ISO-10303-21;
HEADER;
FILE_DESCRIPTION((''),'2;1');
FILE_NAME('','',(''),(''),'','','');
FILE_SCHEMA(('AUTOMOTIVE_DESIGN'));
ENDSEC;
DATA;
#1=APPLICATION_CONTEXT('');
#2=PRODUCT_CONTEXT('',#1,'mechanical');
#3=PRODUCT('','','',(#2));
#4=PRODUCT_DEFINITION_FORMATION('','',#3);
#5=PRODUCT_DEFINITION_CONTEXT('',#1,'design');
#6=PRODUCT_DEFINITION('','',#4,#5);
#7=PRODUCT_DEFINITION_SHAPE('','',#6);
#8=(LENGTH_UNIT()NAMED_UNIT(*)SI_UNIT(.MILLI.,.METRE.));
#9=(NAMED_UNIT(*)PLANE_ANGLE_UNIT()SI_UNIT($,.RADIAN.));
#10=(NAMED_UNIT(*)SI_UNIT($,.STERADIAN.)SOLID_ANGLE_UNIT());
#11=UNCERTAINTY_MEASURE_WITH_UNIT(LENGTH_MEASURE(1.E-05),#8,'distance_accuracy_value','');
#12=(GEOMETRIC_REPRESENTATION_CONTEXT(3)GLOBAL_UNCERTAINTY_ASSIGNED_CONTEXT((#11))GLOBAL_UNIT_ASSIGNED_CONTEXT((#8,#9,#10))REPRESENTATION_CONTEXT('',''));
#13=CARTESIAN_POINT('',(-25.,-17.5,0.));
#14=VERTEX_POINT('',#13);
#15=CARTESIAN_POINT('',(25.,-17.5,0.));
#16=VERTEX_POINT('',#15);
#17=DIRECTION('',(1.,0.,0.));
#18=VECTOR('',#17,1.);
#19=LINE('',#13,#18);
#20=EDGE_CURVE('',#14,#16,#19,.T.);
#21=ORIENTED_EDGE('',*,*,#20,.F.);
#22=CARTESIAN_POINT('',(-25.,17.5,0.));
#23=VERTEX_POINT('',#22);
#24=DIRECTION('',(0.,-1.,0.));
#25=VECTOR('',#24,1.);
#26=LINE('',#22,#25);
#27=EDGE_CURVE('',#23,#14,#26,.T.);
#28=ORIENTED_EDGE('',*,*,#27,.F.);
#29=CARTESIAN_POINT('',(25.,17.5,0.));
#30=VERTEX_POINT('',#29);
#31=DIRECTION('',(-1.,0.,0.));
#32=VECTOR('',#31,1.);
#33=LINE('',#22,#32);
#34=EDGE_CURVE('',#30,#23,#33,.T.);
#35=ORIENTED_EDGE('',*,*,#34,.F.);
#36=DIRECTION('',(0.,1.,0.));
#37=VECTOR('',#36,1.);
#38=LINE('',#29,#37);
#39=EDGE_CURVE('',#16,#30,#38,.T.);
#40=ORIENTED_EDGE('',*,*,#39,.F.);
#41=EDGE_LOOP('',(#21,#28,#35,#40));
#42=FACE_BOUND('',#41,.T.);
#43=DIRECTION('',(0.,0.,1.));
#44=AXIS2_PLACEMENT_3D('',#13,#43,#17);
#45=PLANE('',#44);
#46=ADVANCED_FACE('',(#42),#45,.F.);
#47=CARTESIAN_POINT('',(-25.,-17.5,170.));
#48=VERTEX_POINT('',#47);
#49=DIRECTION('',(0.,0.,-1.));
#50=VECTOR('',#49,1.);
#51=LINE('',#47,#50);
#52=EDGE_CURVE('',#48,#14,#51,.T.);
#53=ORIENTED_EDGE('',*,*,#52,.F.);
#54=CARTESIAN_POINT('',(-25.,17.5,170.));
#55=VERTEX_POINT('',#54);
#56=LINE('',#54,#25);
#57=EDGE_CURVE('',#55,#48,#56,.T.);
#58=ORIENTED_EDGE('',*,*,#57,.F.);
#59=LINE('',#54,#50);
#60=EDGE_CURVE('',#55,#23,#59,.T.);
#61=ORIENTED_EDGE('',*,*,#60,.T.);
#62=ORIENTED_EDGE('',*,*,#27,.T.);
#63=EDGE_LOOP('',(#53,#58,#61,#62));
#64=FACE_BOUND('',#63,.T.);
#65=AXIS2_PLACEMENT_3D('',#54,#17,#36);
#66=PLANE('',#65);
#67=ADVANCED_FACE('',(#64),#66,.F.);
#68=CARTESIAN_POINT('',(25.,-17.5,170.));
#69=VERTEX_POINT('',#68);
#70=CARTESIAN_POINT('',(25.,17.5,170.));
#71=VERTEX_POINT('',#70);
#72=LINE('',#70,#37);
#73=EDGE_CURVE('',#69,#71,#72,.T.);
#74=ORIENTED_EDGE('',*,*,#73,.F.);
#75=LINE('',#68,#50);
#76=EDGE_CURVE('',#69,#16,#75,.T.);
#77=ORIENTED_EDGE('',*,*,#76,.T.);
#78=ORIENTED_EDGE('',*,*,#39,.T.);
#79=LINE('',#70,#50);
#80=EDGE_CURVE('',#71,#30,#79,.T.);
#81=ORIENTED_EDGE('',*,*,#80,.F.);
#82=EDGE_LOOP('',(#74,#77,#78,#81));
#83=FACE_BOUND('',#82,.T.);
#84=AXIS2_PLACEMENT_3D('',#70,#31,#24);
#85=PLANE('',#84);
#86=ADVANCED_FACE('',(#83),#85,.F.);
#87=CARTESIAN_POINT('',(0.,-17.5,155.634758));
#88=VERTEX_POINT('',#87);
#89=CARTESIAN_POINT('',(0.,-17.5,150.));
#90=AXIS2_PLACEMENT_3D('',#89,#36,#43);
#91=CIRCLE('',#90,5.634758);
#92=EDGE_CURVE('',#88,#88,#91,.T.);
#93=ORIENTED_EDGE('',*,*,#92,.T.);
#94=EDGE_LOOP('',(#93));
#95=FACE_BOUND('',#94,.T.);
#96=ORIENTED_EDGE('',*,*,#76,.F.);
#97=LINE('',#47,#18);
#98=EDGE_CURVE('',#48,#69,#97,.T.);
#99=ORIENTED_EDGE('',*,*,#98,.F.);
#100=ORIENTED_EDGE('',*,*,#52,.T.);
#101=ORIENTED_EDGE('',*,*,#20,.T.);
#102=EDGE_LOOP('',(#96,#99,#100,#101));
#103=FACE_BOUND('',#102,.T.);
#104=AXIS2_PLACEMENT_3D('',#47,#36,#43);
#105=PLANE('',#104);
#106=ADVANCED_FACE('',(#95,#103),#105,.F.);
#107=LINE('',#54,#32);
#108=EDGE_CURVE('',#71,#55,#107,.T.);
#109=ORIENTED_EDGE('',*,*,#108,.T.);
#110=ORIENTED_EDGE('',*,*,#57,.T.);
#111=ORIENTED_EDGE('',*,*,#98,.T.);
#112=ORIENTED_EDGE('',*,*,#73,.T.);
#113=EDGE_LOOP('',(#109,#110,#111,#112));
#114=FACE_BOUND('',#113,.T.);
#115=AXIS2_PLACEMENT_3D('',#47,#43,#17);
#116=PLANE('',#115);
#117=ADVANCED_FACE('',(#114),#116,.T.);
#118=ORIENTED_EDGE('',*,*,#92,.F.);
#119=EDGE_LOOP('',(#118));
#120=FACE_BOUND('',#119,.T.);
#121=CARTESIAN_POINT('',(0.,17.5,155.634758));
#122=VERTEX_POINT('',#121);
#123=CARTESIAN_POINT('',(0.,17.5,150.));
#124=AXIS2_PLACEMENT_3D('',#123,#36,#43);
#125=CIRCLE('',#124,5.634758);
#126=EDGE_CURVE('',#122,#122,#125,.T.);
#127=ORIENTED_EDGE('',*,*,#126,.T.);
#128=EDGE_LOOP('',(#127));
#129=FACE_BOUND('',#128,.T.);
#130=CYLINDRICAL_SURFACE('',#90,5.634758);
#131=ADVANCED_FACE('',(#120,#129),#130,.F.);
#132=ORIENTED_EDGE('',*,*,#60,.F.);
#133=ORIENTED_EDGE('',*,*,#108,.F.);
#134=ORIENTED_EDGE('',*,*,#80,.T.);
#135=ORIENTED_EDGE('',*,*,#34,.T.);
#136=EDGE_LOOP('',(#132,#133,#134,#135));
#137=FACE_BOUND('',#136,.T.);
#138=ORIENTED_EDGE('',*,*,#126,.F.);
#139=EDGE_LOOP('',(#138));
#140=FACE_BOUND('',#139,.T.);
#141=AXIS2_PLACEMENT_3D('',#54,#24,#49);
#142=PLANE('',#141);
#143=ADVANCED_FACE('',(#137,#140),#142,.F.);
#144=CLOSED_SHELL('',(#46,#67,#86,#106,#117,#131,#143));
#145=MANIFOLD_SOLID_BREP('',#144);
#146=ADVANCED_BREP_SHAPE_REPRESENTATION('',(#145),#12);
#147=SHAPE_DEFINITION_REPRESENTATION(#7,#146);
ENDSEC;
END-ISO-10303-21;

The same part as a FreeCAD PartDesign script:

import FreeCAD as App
import Part
import Sketcher
from FreeCAD import Vector
Q = App.Units.Quantity


def add_polygon(sketch, points):
    """Adds a closed chain of lines whose ends are joined by coincident constraints."""
    first, n = sketch.GeometryCount, len(points)
    for a, b in zip(points, points[1:] + points[:1]):
        sketch.addGeometry(Part.LineSegment(App.Vector(*a, 0), App.Vector(*b, 0)), False)
    for i in range(n):
        sketch.addConstraint(Sketcher.Constraint("Coincident", first + i, 2, first + (i + 1) % n, 1))

doc = App.newDocument("Part")
body = doc.addObject("PartDesign::Body", "Body")

# Sketch on XY plane
sketch1 = body.newObject("Sketcher::SketchObject", "Sketch")
sketch1.AttachmentSupport = (doc.getObject("XY_Plane"), [""])
sketch1.MapMode = "FlatFace"
add_polygon(sketch1, [(-25, 18), (-25, -18), (25, -18), (25, 18)])  # lines 0-3
sketch1.addConstraint(Sketcher.Constraint("Vertical", 0))
sketch1.addConstraint(Sketcher.Constraint("Horizontal", 1))
sketch1.addConstraint(Sketcher.Constraint("Vertical", 2))
sketch1.addConstraint(Sketcher.Constraint("Horizontal", 3))
sketch1.addConstraint(Sketcher.Constraint("Symmetric", 0, 2, 2, 2, -1, 1))
sketch1.addConstraint(Sketcher.Constraint("DistanceX", 1, 1, 1, 2, Q("50 mm")))
sketch1.addConstraint(Sketcher.Constraint("DistanceY", 0, 2, 0, 1, Q("35 mm")))
pad1 = body.newObject("PartDesign::Pad", "Pad")
pad1.Profile = sketch1
pad1.Length = 170

# Sketch on XZ plane
sketch2 = body.newObject("Sketcher::SketchObject", "Sketch001")
sketch2.AttachmentSupport = (doc.getObject("XZ_Plane"), [""])
sketch2.MapMode = "FlatFace"
sketch2.AttachmentOffset = App.Placement(Vector(0, 0, -17.5), App.Rotation())
sketch2.addGeometry(Part.Circle(Vector(0, 150, 0), Vector(0, 0, 1), 6), False)
sketch2.addConstraint(Sketcher.Constraint("PointOnObject", 0, 3, -2))
sketch2.addConstraint(Sketcher.Constraint("DistanceY", -1, 1, 0, 3, Q("150 mm")))
sketch2.addConstraint(Sketcher.Constraint("Diameter", 0, Q("11.269517 mm")))
pocket1 = body.newObject("PartDesign::Pocket", "Pocket")
pocket1.Profile = sketch2
pocket1.Type = "ThroughAll"
pocket1.Reversed = True

doc.recompute()
